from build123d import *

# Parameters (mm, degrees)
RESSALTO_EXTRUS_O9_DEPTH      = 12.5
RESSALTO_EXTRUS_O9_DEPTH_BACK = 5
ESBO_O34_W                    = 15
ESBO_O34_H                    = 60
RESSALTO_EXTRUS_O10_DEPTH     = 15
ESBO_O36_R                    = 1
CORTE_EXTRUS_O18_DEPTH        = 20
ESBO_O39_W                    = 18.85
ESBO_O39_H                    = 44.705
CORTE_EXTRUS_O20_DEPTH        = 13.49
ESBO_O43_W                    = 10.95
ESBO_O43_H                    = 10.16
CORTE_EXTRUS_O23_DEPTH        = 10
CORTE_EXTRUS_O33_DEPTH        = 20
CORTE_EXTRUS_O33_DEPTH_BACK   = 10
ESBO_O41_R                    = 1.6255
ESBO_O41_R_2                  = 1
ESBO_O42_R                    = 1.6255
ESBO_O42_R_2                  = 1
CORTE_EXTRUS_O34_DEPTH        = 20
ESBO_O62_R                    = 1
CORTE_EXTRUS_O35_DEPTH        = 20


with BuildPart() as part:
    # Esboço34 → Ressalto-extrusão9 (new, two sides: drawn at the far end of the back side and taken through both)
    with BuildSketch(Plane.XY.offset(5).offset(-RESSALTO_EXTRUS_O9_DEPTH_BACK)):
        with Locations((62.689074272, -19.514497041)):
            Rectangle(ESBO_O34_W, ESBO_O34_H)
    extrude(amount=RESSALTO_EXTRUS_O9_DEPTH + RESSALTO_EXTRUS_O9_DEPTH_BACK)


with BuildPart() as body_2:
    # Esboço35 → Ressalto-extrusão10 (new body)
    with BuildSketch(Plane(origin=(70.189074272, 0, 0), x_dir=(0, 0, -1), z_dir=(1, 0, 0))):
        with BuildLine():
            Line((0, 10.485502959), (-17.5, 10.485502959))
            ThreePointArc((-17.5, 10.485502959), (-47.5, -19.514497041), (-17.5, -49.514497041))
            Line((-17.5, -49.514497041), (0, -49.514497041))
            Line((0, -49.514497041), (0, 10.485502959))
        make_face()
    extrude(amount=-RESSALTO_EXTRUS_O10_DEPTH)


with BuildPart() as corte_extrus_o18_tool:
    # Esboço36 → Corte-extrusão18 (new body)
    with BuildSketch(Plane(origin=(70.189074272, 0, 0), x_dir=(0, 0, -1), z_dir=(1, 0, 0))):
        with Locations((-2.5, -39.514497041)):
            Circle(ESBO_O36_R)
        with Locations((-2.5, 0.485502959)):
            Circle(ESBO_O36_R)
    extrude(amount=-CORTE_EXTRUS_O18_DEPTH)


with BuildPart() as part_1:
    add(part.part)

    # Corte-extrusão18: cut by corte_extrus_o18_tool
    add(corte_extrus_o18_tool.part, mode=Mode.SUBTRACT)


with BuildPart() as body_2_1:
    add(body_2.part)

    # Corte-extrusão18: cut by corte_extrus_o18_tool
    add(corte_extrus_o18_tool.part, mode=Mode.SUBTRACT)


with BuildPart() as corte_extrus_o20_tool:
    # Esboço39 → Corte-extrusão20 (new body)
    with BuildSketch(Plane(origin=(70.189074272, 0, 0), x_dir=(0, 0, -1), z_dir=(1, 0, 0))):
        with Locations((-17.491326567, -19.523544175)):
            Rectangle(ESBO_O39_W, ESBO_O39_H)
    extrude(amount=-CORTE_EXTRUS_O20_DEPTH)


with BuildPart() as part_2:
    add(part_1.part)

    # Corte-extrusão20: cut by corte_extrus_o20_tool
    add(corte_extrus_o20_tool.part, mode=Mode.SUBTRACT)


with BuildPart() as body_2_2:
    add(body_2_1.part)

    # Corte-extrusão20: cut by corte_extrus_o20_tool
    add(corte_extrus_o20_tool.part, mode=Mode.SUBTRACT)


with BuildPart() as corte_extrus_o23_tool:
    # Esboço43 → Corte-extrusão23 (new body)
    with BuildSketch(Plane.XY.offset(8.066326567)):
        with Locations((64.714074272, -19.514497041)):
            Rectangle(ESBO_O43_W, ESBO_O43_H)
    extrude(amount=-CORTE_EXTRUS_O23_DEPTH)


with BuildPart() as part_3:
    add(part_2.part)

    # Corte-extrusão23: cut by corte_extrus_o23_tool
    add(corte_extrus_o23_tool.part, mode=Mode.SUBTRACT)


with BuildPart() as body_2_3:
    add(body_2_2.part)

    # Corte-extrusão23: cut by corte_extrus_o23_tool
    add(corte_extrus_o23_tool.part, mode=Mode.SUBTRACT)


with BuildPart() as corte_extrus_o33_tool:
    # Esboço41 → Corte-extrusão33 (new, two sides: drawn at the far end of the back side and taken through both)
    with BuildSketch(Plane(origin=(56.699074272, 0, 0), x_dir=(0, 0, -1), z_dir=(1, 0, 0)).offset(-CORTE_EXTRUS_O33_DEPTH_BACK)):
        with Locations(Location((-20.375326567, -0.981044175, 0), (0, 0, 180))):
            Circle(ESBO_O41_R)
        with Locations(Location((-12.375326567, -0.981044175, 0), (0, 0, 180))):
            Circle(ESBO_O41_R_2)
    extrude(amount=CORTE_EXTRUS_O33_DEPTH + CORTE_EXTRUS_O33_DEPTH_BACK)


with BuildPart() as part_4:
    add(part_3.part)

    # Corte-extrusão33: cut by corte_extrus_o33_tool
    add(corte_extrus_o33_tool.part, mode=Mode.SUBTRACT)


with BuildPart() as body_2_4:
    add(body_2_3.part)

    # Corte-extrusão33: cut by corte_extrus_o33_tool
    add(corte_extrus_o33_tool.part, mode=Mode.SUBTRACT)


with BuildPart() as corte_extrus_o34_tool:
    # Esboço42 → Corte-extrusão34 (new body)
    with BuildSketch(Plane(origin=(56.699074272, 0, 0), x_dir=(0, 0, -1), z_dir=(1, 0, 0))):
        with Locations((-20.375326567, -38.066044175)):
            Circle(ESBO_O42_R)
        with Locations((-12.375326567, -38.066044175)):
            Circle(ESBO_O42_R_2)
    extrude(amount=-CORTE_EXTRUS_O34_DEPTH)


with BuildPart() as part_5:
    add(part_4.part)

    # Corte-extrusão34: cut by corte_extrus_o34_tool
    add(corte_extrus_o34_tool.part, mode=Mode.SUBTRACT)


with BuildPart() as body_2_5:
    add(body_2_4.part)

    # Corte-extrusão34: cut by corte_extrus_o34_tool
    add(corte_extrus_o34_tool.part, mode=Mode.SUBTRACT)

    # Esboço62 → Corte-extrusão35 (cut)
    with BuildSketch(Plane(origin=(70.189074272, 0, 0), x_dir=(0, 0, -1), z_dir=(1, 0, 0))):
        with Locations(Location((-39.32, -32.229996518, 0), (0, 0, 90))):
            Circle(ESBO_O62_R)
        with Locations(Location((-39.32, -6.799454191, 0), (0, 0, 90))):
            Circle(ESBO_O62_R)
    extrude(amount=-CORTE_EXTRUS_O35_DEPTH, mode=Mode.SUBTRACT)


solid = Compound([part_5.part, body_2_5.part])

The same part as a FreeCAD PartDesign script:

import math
import FreeCAD as App
import Part
import Sketcher

V = App.Vector

doc = App.newDocument("Part")
params = doc.addObject("Spreadsheet::Sheet", "Params")
for row, (alias, value) in enumerate([
    ("sketch1_width", "15 mm"),
    ("sketch1_height", "60 mm"),
    ("pad1_length", "12.5 mm"),
    ("pad1_length2", "5 mm"),
    ("sketch2_radius", "30 mm"),
    ("sketch2_height", "17.5 mm"),
    ("pad2_length", "15 mm"),
    ("sketch3_diameter", "2 mm"),
    ("pad3_length", "20 mm"),
    ("sketch4_height", "18.85 mm"),
    ("pad4_length", "13.49 mm"),
    ("sketch5_width", "10.95 mm"),
    ("sketch5_height", "10.16 mm"),
    ("pad5_length", "10 mm"),
    ("sketch6_diameter", "2 mm"),
    ("pad6_length", "20 mm"),
    ("pad6_length2", "10 mm"),
    ("sketch7_diameter", "2 mm"),
    ("pad7_length", "20 mm"),
    ("sketch8_diameter", "2 mm"),
    ("pocket1_length", "20 mm"),
], start=1):
    params.set(f"A{row}", alias)
    params.set(f"B{row}", "=" + value)
    params.setAlias(f"B{row}", alias)

body = doc.addObject("PartDesign::Body", "Body")

# Sketch on XY plane
sketch1 = body.newObject("Sketcher::SketchObject", "Sketch")
sketch1.AttachmentSupport = (doc.getObject("XY_Plane"), [""])
sketch1.MapMode = "FlatFace"
sketch1.AttachmentOffset = App.Placement(V(0, 0, 5), App.Rotation())
sketch1.addGeometry([
    Part.LineSegment(V(55.189074, 10.485503, 0), V(55.189074, -49.514497, 0)),
    Part.LineSegment(V(55.189074, -49.514497, 0), V(70.189074, -49.514497, 0)),
    Part.LineSegment(V(70.189074, -49.514497, 0), V(70.189074, 10.485503, 0)),
    Part.LineSegment(V(70.189074, 10.485503, 0), V(55.189074, 10.485503, 0)),
], False)
sketch1.addConstraint([
    Sketcher.Constraint("Coincident", 0, 2, 1, 1),
    Sketcher.Constraint("Coincident", 1, 2, 2, 1),
    Sketcher.Constraint("Coincident", 2, 2, 3, 1),
    Sketcher.Constraint("Coincident", 3, 2, 0, 1),
    Sketcher.Constraint("Vertical", 0),
    Sketcher.Constraint("Horizontal", 1),
    Sketcher.Constraint("Vertical", 2),
    Sketcher.Constraint("Horizontal", 3),
    Sketcher.Constraint("DistanceX", 1, 1, 1, 2, 15.0),
    Sketcher.Constraint("DistanceY", 0, 2, 0, 1, 60.0),
    Sketcher.Constraint("DistanceX", -1, 1, 0, 2, 55.189074),
    Sketcher.Constraint("DistanceY", 0, 2, -1, 1, 49.514497),
])
sketch1.setExpression("Constraints[8]", "Params.sketch1_width")
sketch1.setExpression("Constraints[9]", "Params.sketch1_height")
pad1 = body.newObject("PartDesign::Pad", "Pad")
pad1.Profile = sketch1
pad1.Type = "TwoLengths"
pad1.setExpression("Length", "Params.pad1_length")
pad1.setExpression("Length2", "Params.pad1_length2")
body2 = doc.addObject("PartDesign::Body", "Body001")

# Sketch on YZ plane
sketch2 = body2.newObject("Sketcher::SketchObject", "Sketch001")
sketch2.AttachmentSupport = (doc.getObject("YZ_Plane001"), [""])
sketch2.MapMode = "FlatFace"
sketch2.AttachmentOffset = App.Placement(V(0, 0, 70.189074), App.Rotation())
sketch2.addGeometry([
    Part.LineSegment(V(10.485503, 0, 0), V(10.485503, 17.5, 0)),
    Part.ArcOfCircle(Part.Circle(V(-19.514497, 17.5, 0), V(0, 0, 1), 30), math.radians(0), math.radians(180)),
    Part.LineSegment(V(-49.514497, 17.5, 0), V(-49.514497, 0, 0)),
    Part.LineSegment(V(-49.514497, 0, 0), V(10.485503, 0, 0)),
], False)
sketch2.addConstraint([
    Sketcher.Constraint("Tangent", 0, 2, 1, 1),
    Sketcher.Constraint("Tangent", 1, 2, 2, 1),
    Sketcher.Constraint("Coincident", 2, 2, 3, 1),
    Sketcher.Constraint("Coincident", 3, 2, 0, 1),
    Sketcher.Constraint("Vertical", 0),
    Sketcher.Constraint("Vertical", 2),
    Sketcher.Constraint("Horizontal", 3),
    Sketcher.Constraint("PointOnObject", 2, 2, -1),
    Sketcher.Constraint("Radius", 1, 30.0),
    Sketcher.Constraint("DistanceY", 0, 1, 0, 2, 17.5),
    Sketcher.Constraint("DistanceX", 1, 3, -1, 1, 19.514497),
])
sketch2.setExpression("Constraints[8]", "Params.sketch2_radius")
sketch2.setExpression("Constraints[9]", "Params.sketch2_height")
pad2 = body2.newObject("PartDesign::Pad", "Pad001")
pad2.Profile = sketch2
pad2.setExpression("Length", "Params.pad2_length")
pad2.Reversed = True
body3 = doc.addObject("PartDesign::Body", "Body002")
body3.AllowCompound = True

# Sketch on YZ plane
sketch3 = body3.newObject("Sketcher::SketchObject", "Sketch002")
sketch3.AttachmentSupport = (doc.getObject("YZ_Plane002"), [""])
sketch3.MapMode = "FlatFace"
sketch3.AttachmentOffset = App.Placement(V(0, 0, 70.189074), App.Rotation())
sketch3.addGeometry([
    Part.Circle(V(-39.514497, 2.5, 0), V(0, 0, 1), 1),
    Part.Circle(V(0.485503, 2.5, 0), V(0, 0, 1), 1),
], False)
sketch3.addConstraint([
    Sketcher.Constraint("Equal", 0, 1),
    Sketcher.Constraint("Horizontal", 0, 3, 1, 3),
    Sketcher.Constraint("Diameter", 0, 2.0),
    Sketcher.Constraint("DistanceX", 0, 3, 1, 3, 40.0),
    Sketcher.Constraint("DistanceY", -1, 1, 0, 3, 2.5),
    Sketcher.Constraint("DistanceX", 0, 3, -1, 1, 39.514497),
])
sketch3.setExpression("Constraints[2]", "Params.sketch3_diameter")
pad3 = body3.newObject("PartDesign::Pad", "Pad002")
pad3.Profile = sketch3
pad3.setExpression("Length", "Params.pad3_length")
pad3.Reversed = True
doc.recompute()

body4 = doc.addObject("PartDesign::Body", "Body003")
body4.BaseFeature = body3
boolean = body.newObject("PartDesign::Boolean", "Boolean")
boolean.Type = "Cut"
boolean.addObjects([body4])
doc.recompute()

boolean2 = body2.newObject("PartDesign::Boolean", "Boolean001")
boolean2.Type = "Cut"
boolean2.addObjects([body3])
body5 = doc.addObject("PartDesign::Body", "Body004")

# Sketch on YZ plane
sketch4 = body5.newObject("Sketcher::SketchObject", "Sketch003")
sketch4.AttachmentSupport = (doc.getObject("YZ_Plane004"), [""])
sketch4.MapMode = "FlatFace"
sketch4.AttachmentOffset = App.Placement(V(0, 0, 70.189074), App.Rotation())
sketch4.addGeometry([
    Part.LineSegment(V(2.828956, 26.916327, 0), V(-41.876044, 26.916327, 0)),
    Part.LineSegment(V(-41.876044, 26.916327, 0), V(-41.876044, 8.066327, 0)),
    Part.LineSegment(V(-41.876044, 8.066327, 0), V(2.828956, 8.066327, 0)),
    Part.LineSegment(V(2.828956, 8.066327, 0), V(2.828956, 26.916327, 0)),
], False)
sketch4.addConstraint([
    Sketcher.Constraint("Coincident", 0, 2, 1, 1),
    Sketcher.Constraint("Coincident", 1, 2, 2, 1),
    Sketcher.Constraint("Coincident", 2, 2, 3, 1),
    Sketcher.Constraint("Coincident", 3, 2, 0, 1),
    Sketcher.Constraint("Horizontal", 0),
    Sketcher.Constraint("Vertical", 1),
    Sketcher.Constraint("Horizontal", 2),
    Sketcher.Constraint("Vertical", 3),
    Sketcher.Constraint("DistanceY", 1, 2, 1, 1, 18.85),
    Sketcher.Constraint("DistanceX", 0, 2, 0, 1, 44.705),
    Sketcher.Constraint("DistanceX", 0, 2, -1, 1, 41.876044),
    Sketcher.Constraint("DistanceY", -1, 1, 0, 2, 26.916327),
])
sketch4.setExpression("Constraints[8]", "Params.sketch4_height")
pad4 = body5.newObject("PartDesign::Pad", "Pad003")
pad4.Profile = sketch4
pad4.setExpression("Length", "Params.pad4_length")
pad4.Reversed = True
doc.recompute()

body6 = doc.addObject("PartDesign::Body", "Body005")
body6.BaseFeature = body5
boolean3 = body.newObject("PartDesign::Boolean", "Boolean002")
boolean3.Type = "Cut"
boolean3.addObjects([body6])
doc.recompute()

boolean4 = body2.newObject("PartDesign::Boolean", "Boolean003")
boolean4.Type = "Cut"
boolean4.addObjects([body5])
body7 = doc.addObject("PartDesign::Body", "Body006")

# Sketch on XY plane
sketch5 = body7.newObject("Sketcher::SketchObject", "Sketch004")
sketch5.AttachmentSupport = (doc.getObject("XY_Plane006"), [""])
sketch5.MapMode = "FlatFace"
sketch5.AttachmentOffset = App.Placement(V(0, 0, 8.066327), App.Rotation())
sketch5.addGeometry([
    Part.LineSegment(V(59.239074, -14.434497, 0), V(59.239074, -24.594497, 0)),
    Part.LineSegment(V(59.239074, -24.594497, 0), V(70.189074, -24.594497, 0)),
    Part.LineSegment(V(70.189074, -24.594497, 0), V(70.189074, -14.434497, 0)),
    Part.LineSegment(V(70.189074, -14.434497, 0), V(59.239074, -14.434497, 0)),
], False)
sketch5.addConstraint([
    Sketcher.Constraint("Coincident", 0, 2, 1, 1),
    Sketcher.Constraint("Coincident", 1, 2, 2, 1),
    Sketcher.Constraint("Coincident", 2, 2, 3, 1),
    Sketcher.Constraint("Coincident", 3, 2, 0, 1),
    Sketcher.Constraint("Vertical", 0),
    Sketcher.Constraint("Horizontal", 1),
    Sketcher.Constraint("Vertical", 2),
    Sketcher.Constraint("Horizontal", 3),
    Sketcher.Constraint("DistanceX", 1, 1, 1, 2, 10.95),
    Sketcher.Constraint("DistanceY", 0, 2, 0, 1, 10.16),
    Sketcher.Constraint("DistanceX", -1, 1, 0, 2, 59.239074),
    Sketcher.Constraint("DistanceY", 0, 2, -1, 1, 24.594497),
])
sketch5.setExpression("Constraints[8]", "Params.sketch5_width")
sketch5.setExpression("Constraints[9]", "Params.sketch5_height")
pad5 = body7.newObject("PartDesign::Pad", "Pad004")
pad5.Profile = sketch5
pad5.setExpression("Length", "Params.pad5_length")
pad5.Reversed = True
doc.recompute()

body8 = doc.addObject("PartDesign::Body", "Body007")
body8.BaseFeature = body7
boolean5 = body.newObject("PartDesign::Boolean", "Boolean004")
boolean5.Type = "Cut"
boolean5.addObjects([body8])
doc.recompute()

boolean6 = body2.newObject("PartDesign::Boolean", "Boolean005")
boolean6.Type = "Cut"
boolean6.addObjects([body7])
body9 = doc.addObject("PartDesign::Body", "Body008")
body9.AllowCompound = True

# Sketch on YZ plane
sketch6 = body9.newObject("Sketcher::SketchObject", "Sketch005")
sketch6.AttachmentSupport = (doc.getObject("YZ_Plane008"), [""])
sketch6.MapMode = "FlatFace"
sketch6.AttachmentOffset = App.Placement(V(0, 0, 56.699074), App.Rotation())
sketch6.addGeometry([
    Part.Circle(V(-0.981044, 20.375327, 0), V(0, 0, 1), 1.6255),
    Part.Circle(V(-0.981044, 12.375327, 0), V(0, 0, 1), 1),
], False)
sketch6.addConstraint([
    Sketcher.Constraint("Vertical", 0, 3, 1, 3),
    Sketcher.Constraint("Diameter", 1, 2.0),
    Sketcher.Constraint("Diameter", 0, 3.251),
    Sketcher.Constraint("DistanceY", 1, 3, 0, 3, 8.0),
    Sketcher.Constraint("DistanceX", 0, 3, -1, 1, 0.981044),
    Sketcher.Constraint("DistanceY", -1, 1, 0, 3, 20.375327),
])
sketch6.setExpression("Constraints[1]", "Params.sketch6_diameter")
pad6 = body9.newObject("PartDesign::Pad", "Pad005")
pad6.Profile = sketch6
pad6.Type = "TwoLengths"
pad6.setExpression("Length", "Params.pad6_length")
pad6.setExpression("Length2", "Params.pad6_length2")
doc.recompute()

body10 = doc.addObject("PartDesign::Body", "Body009")
body10.BaseFeature = body9
boolean7 = body.newObject("PartDesign::Boolean", "Boolean006")
boolean7.Type = "Cut"
boolean7.addObjects([body10])
doc.recompute()

boolean8 = body2.newObject("PartDesign::Boolean", "Boolean007")
boolean8.Type = "Cut"
boolean8.addObjects([body9])
body11 = doc.addObject("PartDesign::Body", "Body010")
body11.AllowCompound = True

# Sketch on YZ plane
sketch7 = body11.newObject("Sketcher::SketchObject", "Sketch006")
sketch7.AttachmentSupport = (doc.getObject("YZ_Plane010"), [""])
sketch7.MapMode = "FlatFace"
sketch7.AttachmentOffset = App.Placement(V(0, 0, 56.699074), App.Rotation())
sketch7.addGeometry([
    Part.Circle(V(-38.066044, 20.375327, 0), V(0, 0, 1), 1.6255),
    Part.Circle(V(-38.066044, 12.375327, 0), V(0, 0, 1), 1),
], False)
sketch7.addConstraint([
    Sketcher.Constraint("Vertical", 0, 3, 1, 3),
    Sketcher.Constraint("Diameter", 1, 2.0),
    Sketcher.Constraint("Diameter", 0, 3.251),
    Sketcher.Constraint("DistanceY", 1, 3, 0, 3, 8.0),
    Sketcher.Constraint("DistanceX", 0, 3, -1, 1, 38.066044),
    Sketcher.Constraint("DistanceY", -1, 1, 0, 3, 20.375327),
])
sketch7.setExpression("Constraints[1]", "Params.sketch7_diameter")
pad7 = body11.newObject("PartDesign::Pad", "Pad006")
pad7.Profile = sketch7
pad7.setExpression("Length", "Params.pad7_length")
pad7.Reversed = True
doc.recompute()

body12 = doc.addObject("PartDesign::Body", "Body011")
body12.BaseFeature = body11
boolean9 = body.newObject("PartDesign::Boolean", "Boolean008")
boolean9.Type = "Cut"
boolean9.addObjects([body12])
doc.recompute()

boolean10 = body2.newObject("PartDesign::Boolean", "Boolean009")
boolean10.Type = "Cut"
boolean10.addObjects([body11])

# Sketch on YZ plane
sketch8 = body2.newObject("Sketcher::SketchObject", "Sketch007")
sketch8.AttachmentSupport = (doc.getObject("YZ_Plane001"), [""])
sketch8.MapMode = "FlatFace"
sketch8.AttachmentOffset = App.Placement(V(0, 0, 70.189074), App.Rotation())
sketch8.addGeometry([
    Part.Circle(V(-32.229997, 39.32, 0), V(0, 0, 1), 1),
    Part.Circle(V(-6.799454, 39.32, 0), V(0, 0, 1), 1),
], False)
sketch8.addConstraint([
    Sketcher.Constraint("Equal", 0, 1),
    Sketcher.Constraint("Horizontal", 0, 3, 1, 3),
    Sketcher.Constraint("Diameter", 0, 2.0),
    Sketcher.Constraint("DistanceY", -1, 1, 0, 3, 39.32),
    Sketcher.Constraint("DistanceX", 0, 3, -1, 1, 32.229997),
    Sketcher.Constraint("DistanceX", 1, 3, -1, 1, 6.799454),
])
sketch8.setExpression("Constraints[2]", "Params.sketch8_diameter")
pocket1 = body2.newObject("PartDesign::Pocket", "Pocket")
pocket1.Profile = sketch8
pocket1.setExpression("Length", "Params.pocket1_length")

doc.recompute()
